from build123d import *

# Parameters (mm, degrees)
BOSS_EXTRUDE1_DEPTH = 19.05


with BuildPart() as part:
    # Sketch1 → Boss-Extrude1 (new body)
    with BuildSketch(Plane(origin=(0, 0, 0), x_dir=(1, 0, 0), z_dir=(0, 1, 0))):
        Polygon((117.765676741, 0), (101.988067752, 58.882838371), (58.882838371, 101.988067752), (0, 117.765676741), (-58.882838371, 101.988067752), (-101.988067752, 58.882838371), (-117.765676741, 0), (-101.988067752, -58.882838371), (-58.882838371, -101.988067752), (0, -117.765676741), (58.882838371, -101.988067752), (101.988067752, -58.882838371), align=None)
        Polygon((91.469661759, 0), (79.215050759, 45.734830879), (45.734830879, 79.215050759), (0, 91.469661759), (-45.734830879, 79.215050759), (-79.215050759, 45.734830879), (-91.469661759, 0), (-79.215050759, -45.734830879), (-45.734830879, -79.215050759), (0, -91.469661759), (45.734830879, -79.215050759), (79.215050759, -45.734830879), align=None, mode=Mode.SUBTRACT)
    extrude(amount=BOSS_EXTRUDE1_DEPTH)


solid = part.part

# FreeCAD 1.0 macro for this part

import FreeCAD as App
import Part
import Sketcher

V = App.Vector
Q = App.Units.Quantity

doc = App.newDocument("Part")
body = doc.addObject("PartDesign::Body", "Body")

# Sketch on XZ plane
sketch1 = body.newObject("Sketcher::SketchObject", "Sketch")
sketch1.AttachmentSupport = (doc.getObject("XZ_Plane"), [""])
sketch1.MapMode = "FlatFace"
sketch1.addGeometry(Part.LineSegment(V(118, 0, 0), V(102, -59, 0)), False)
sketch1.addGeometry(Part.LineSegment(V(102, -59, 0), V(59, -102, 0)), False)
sketch1.addGeometry(Part.LineSegment(V(59, -102, 0), V(0, -118, 0)), False)
sketch1.addGeometry(Part.LineSegment(V(0, -118, 0), V(-59, -102, 0)), False)
sketch1.addGeometry(Part.LineSegment(V(-59, -102, 0), V(-102, -59, 0)), False)
sketch1.addGeometry(Part.LineSegment(V(-102, -59, 0), V(-118, 0, 0)), False)
sketch1.addGeometry(Part.LineSegment(V(-118, 0, 0), V(-102, 59, 0)), False)
sketch1.addGeometry(Part.LineSegment(V(-102, 59, 0), V(-59, 102, 0)), False)
sketch1.addGeometry(Part.LineSegment(V(-59, 102, 0), V(0, 118, 0)), False)
sketch1.addGeometry(Part.LineSegment(V(0, 118, 0), V(59, 102, 0)), False)
sketch1.addGeometry(Part.LineSegment(V(59, 102, 0), V(102, 59, 0)), False)
sketch1.addGeometry(Part.LineSegment(V(102, 59, 0), V(118, 0, 0)), False)
sketch1.addGeometry(Part.LineSegment(V(79, -46, 0), V(91, 0, 0)), False)
sketch1.addGeometry(Part.LineSegment(V(91, 0, 0), V(79, 46, 0)), False)
sketch1.addGeometry(Part.LineSegment(V(79, 46, 0), V(46, 79, 0)), False)
sketch1.addGeometry(Part.LineSegment(V(46, 79, 0), V(0, 91, 0)), False)
sketch1.addGeometry(Part.LineSegment(V(0, 91, 0), V(-46, 79, 0)), False)
sketch1.addGeometry(Part.LineSegment(V(-46, 79, 0), V(-79, 46, 0)), False)
sketch1.addGeometry(Part.LineSegment(V(-79, 46, 0), V(-91, 0, 0)), False)
sketch1.addGeometry(Part.LineSegment(V(-91, 0, 0), V(-79, -46, 0)), False)
sketch1.addGeometry(Part.LineSegment(V(-79, -46, 0), V(-46, -79, 0)), False)
sketch1.addGeometry(Part.LineSegment(V(-46, -79, 0), V(0, -91, 0)), False)
sketch1.addGeometry(Part.LineSegment(V(0, -91, 0), V(46, -79, 0)), False)
sketch1.addGeometry(Part.LineSegment(V(46, -79, 0), V(79, -46, 0)), False)
sketch1.addConstraint(Sketcher.Constraint("Coincident", 0, 2, 1, 1))
sketch1.addConstraint(Sketcher.Constraint("Coincident", 1, 2, 2, 1))
sketch1.addConstraint(Sketcher.Constraint("Coincident", 2, 2, 3, 1))
sketch1.addConstraint(Sketcher.Constraint("Coincident", 3, 2, 4, 1))
sketch1.addConstraint(Sketcher.Constraint("Coincident", 4, 2, 5, 1))
sketch1.addConstraint(Sketcher.Constraint("Coincident", 5, 2, 6, 1))
sketch1.addConstraint(Sketcher.Constraint("Coincident", 6, 2, 7, 1))
sketch1.addConstraint(Sketcher.Constraint("Coincident", 7, 2, 8, 1))
sketch1.addConstraint(Sketcher.Constraint("Coincident", 8, 2, 9, 1))
sketch1.addConstraint(Sketcher.Constraint("Coincident", 9, 2, 10, 1))
sketch1.addConstraint(Sketcher.Constraint("Coincident", 10, 2, 11, 1))
sketch1.addConstraint(Sketcher.Constraint("Coincident", 11, 2, 0, 1))
sketch1.addConstraint(Sketcher.Constraint("Coincident", 12, 2, 13, 1))
sketch1.addConstraint(Sketcher.Constraint("Coincident", 13, 2, 14, 1))
sketch1.addConstraint(Sketcher.Constraint("Coincident", 14, 2, 15, 1))
sketch1.addConstraint(Sketcher.Constraint("Coincident", 15, 2, 16, 1))
sketch1.addConstraint(Sketcher.Constraint("Coincident", 16, 2, 17, 1))
sketch1.addConstraint(Sketcher.Constraint("Coincident", 17, 2, 18, 1))
sketch1.addConstraint(Sketcher.Constraint("Coincident", 18, 2, 19, 1))
sketch1.addConstraint(Sketcher.Constraint("Coincident", 19, 2, 20, 1))
sketch1.addConstraint(Sketcher.Constraint("Coincident", 20, 2, 21, 1))
sketch1.addConstraint(Sketcher.Constraint("Coincident", 21, 2, 22, 1))
sketch1.addConstraint(Sketcher.Constraint("Coincident", 22, 2, 23, 1))
sketch1.addConstraint(Sketcher.Constraint("Coincident", 23, 2, 12, 1))
sketch1.addConstraint(Sketcher.Constraint("Symmetric", 0, 2, 6, 2, -1, 1))
sketch1.addConstraint(Sketcher.Constraint("Symmetric", 1, 2, 7, 2, -1, 1))
sketch1.addConstraint(Sketcher.Constraint("Symmetric", 2, 2, 8, 2, -1, 1))
sketch1.addConstraint(Sketcher.Constraint("Symmetric", 3, 2, 9, 2, -1, 1))
sketch1.addConstraint(Sketcher.Constraint("Symmetric", 4, 2, 10, 2, -1, 1))
sketch1.addConstraint(Sketcher.Constraint("Symmetric", 5, 2, 11, 2, -1, 1))
sketch1.addConstraint(Sketcher.Constraint("Symmetric", 12, 2, 18, 2, -1, 1))
sketch1.addConstraint(Sketcher.Constraint("Symmetric", 13, 2, 19, 2, -1, 1))
sketch1.addConstraint(Sketcher.Constraint("Symmetric", 14, 2, 20, 2, -1, 1))
sketch1.addConstraint(Sketcher.Constraint("Symmetric", 15, 2, 21, 2, -1, 1))
sketch1.addConstraint(Sketcher.Constraint("Symmetric", 16, 2, 22, 2, -1, 1))
sketch1.addConstraint(Sketcher.Constraint("Symmetric", 17, 2, 23, 2, -1, 1))
sketch1.addConstraint(Sketcher.Constraint("Symmetric", 1, 2, 3, 2, -2))
sketch1.addConstraint(Sketcher.Constraint("Symmetric", 0, 2, 4, 2, -2))
sketch1.addConstraint(Sketcher.Constraint("Symmetric", 14, 2, 16, 2, -2))
sketch1.addConstraint(Sketcher.Constraint("Symmetric", 13, 2, 17, 2, -2))
sketch1.addConstraint(Sketcher.Constraint("PointOnObject", 2, 2, -2))
sketch1.addConstraint(Sketcher.Constraint("PointOnObject", 5, 2, -1))
sketch1.addConstraint(Sketcher.Constraint("PointOnObject", 12, 2, -1))
sketch1.addConstraint(Sketcher.Constraint("PointOnObject", 15, 2, -2))
sketch1.addConstraint(Sketcher.Constraint("Perpendicular", 0, 3))
sketch1.addConstraint(Sketcher.Constraint("Perpendicular", 1, 4))
sketch1.addConstraint(Sketcher.Constraint("Perpendicular", 9, 12))
sketch1.addConstraint(Sketcher.Constraint("Parallel", 10, 14))
sketch1.addConstraint(Sketcher.Constraint("Perpendicular", 12, 15))
sketch1.addConstraint(Sketcher.Constraint("Equal", 0, 1))
sketch1.addConstraint(Sketcher.Constraint("Equal", 1, 2))
sketch1.addConstraint(Sketcher.Constraint("Equal", 13, 14))
sketch1.addConstraint(Sketcher.Constraint("Equal", 14, 15))
sketch1.addConstraint(Sketcher.Constraint("Angle", 0, Q("-105 deg")))
sketch1.addConstraint(Sketcher.Constraint("Distance", 0, Q("2.4 in")))
sketch1.addConstraint(Sketcher.Constraint("Distance", 12, 47.348181))
pad1 = body.newObject("PartDesign::Pad", "Pad")
pad1.Profile = sketch1
pad1.Length = Q("0.75 in")
pad1.Reversed = True

doc.recompute()
